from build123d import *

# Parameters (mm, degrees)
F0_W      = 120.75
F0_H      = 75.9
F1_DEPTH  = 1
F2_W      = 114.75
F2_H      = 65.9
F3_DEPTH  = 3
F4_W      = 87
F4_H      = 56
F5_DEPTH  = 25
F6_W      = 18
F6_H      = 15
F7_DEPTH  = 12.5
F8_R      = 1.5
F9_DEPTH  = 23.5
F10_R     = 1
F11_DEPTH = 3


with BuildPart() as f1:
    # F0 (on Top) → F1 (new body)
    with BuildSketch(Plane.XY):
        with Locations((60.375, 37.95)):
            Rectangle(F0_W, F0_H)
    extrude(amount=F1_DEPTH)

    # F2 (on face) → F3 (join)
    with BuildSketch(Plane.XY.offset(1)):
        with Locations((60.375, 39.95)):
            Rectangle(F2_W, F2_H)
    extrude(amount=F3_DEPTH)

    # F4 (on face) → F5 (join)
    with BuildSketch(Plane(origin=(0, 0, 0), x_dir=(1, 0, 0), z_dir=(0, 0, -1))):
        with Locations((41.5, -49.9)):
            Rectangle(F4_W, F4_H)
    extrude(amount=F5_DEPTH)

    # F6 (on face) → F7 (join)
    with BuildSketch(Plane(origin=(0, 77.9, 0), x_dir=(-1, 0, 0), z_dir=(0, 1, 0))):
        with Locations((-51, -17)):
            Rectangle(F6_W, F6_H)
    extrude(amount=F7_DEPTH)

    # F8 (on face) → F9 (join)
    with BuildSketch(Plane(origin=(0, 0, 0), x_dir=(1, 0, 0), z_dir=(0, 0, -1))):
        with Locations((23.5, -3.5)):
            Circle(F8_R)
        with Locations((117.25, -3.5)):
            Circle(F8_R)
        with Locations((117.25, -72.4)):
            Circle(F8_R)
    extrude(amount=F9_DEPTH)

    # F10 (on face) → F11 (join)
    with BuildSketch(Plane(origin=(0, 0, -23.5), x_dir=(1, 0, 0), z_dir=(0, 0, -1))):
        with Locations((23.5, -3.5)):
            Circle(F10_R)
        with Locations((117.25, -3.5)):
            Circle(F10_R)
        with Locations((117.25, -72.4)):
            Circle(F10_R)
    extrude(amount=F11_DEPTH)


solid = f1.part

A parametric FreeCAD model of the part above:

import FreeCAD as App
import Part
import Sketcher
from FreeCAD import Vector


def add_polygon(sketch, points):
    """Adds a closed chain of lines whose ends are joined by coincident constraints."""
    first, n = sketch.GeometryCount, len(points)
    for a, b in zip(points, points[1:] + points[:1]):
        sketch.addGeometry(Part.LineSegment(App.Vector(*a, 0), App.Vector(*b, 0)), False)
    for i in range(n):
        sketch.addConstraint(Sketcher.Constraint("Coincident", first + i, 2, first + (i + 1) % n, 1))

doc = App.newDocument("Part")
body = doc.addObject("PartDesign::Body", "Body")

# Sketch on XY plane
sketch1 = body.newObject("Sketcher::SketchObject", "Sketch")
sketch1.AttachmentSupport = (doc.getObject("XY_Plane"), [""])
sketch1.MapMode = "FlatFace"
add_polygon(sketch1, [(0, 76), (0, 0), (121, 0), (121, 76)])  # lines 0-3
sketch1.addConstraint(Sketcher.Constraint("Vertical", 0))
sketch1.addConstraint(Sketcher.Constraint("Horizontal", 1))
sketch1.addConstraint(Sketcher.Constraint("Vertical", 2))
sketch1.addConstraint(Sketcher.Constraint("Horizontal", 3))
sketch1.addConstraint(Sketcher.Constraint("Coincident", 0, 2, -1, 1))
sketch1.addConstraint(Sketcher.Constraint("DistanceY", 0, 2, 0, 1, 75.9))
sketch1.addConstraint(Sketcher.Constraint("DistanceX", 1, 1, 1, 2, 120.75))
pad1 = body.newObject("PartDesign::Pad", "Pad")
pad1.Profile = sketch1
pad1.Length = 1

# Sketch on XY plane
sketch2 = body.newObject("Sketcher::SketchObject", "Sketch001")
sketch2.AttachmentSupport = (doc.getObject("XY_Plane"), [""])
sketch2.MapMode = "FlatFace"
sketch2.AttachmentOffset = App.Placement(Vector(0, 0, 1), App.Rotation())
add_polygon(sketch2, [(3, 73), (3, 7), (118, 7), (118, 73)])  # lines 0-3
sketch2.addConstraint(Sketcher.Constraint("Vertical", 0))
sketch2.addConstraint(Sketcher.Constraint("Horizontal", 1))
sketch2.addConstraint(Sketcher.Constraint("Vertical", 2))
sketch2.addConstraint(Sketcher.Constraint("Horizontal", 3))
sketch2.addConstraint(Sketcher.Constraint("DistanceY", 0, 2, 0, 1, 65.9))
sketch2.addConstraint(Sketcher.Constraint("DistanceX", -1, 1, 0, 2, 3.0))
sketch2.addConstraint(Sketcher.Constraint("DistanceY", -1, 1, 0, 2, 7.0))
sketch2.addConstraint(Sketcher.Constraint("DistanceX", 1, 1, 1, 2, 114.75))
pad2 = body.newObject("PartDesign::Pad", "Pad001")
pad2.Profile = sketch2
pad2.Length = 3

# Sketch on XY plane
sketch3 = body.newObject("Sketcher::SketchObject", "Sketch002")
sketch3.AttachmentSupport = (doc.getObject("XY_Plane"), [""])
sketch3.MapMode = "FlatFace"
add_polygon(sketch3, [(-2, 22), (-2, 78), (85, 78), (85, 22)])  # lines 0-3
sketch3.addConstraint(Sketcher.Constraint("Vertical", 0))
sketch3.addConstraint(Sketcher.Constraint("Horizontal", 1))
sketch3.addConstraint(Sketcher.Constraint("Vertical", 2))
sketch3.addConstraint(Sketcher.Constraint("Horizontal", 3))
sketch3.addConstraint(Sketcher.Constraint("DistanceX", 1, 1, 1, 2, 87.0))
sketch3.addConstraint(Sketcher.Constraint("DistanceY", 0, 1, 0, 2, 56.0))
sketch3.addConstraint(Sketcher.Constraint("DistanceX", 0, 2, -1, 1, 2.0))
sketch3.addConstraint(Sketcher.Constraint("DistanceY", -1, 1, 0, 2, 77.9))
pad3 = body.newObject("PartDesign::Pad", "Pad002")
pad3.Profile = sketch3
pad3.Length = 25
pad3.Reversed = True

# Sketch on XZ plane
sketch4 = body.newObject("Sketcher::SketchObject", "Sketch003")
sketch4.AttachmentSupport = (doc.getObject("XZ_Plane"), [""])
sketch4.MapMode = "FlatFace"
sketch4.AttachmentOffset = App.Placement(Vector(0, 0, -77.9), App.Rotation())
add_polygon(sketch4, [(60, -10), (60, -24), (42, -24), (42, -10)])  # lines 0-3
sketch4.addConstraint(Sketcher.Constraint("Vertical", 0))
sketch4.addConstraint(Sketcher.Constraint("Horizontal", 1))
sketch4.addConstraint(Sketcher.Constraint("Vertical", 2))
sketch4.addConstraint(Sketcher.Constraint("Horizontal", 3))
sketch4.addConstraint(Sketcher.Constraint("DistanceX", 1, 2, 1, 1, 18.0))
sketch4.addConstraint(Sketcher.Constraint("DistanceY", 0, 2, 0, 1, 15.0))
sketch4.addConstraint(Sketcher.Constraint("DistanceX", -1, 1, 0, 2, 60.0))
sketch4.addConstraint(Sketcher.Constraint("DistanceY", 0, 2, -1, 1, 24.5))
pad4 = body.newObject("PartDesign::Pad", "Pad003")
pad4.Profile = sketch4
pad4.Length = 12.5
pad4.Reversed = True

# Sketch on XY plane
sketch5 = body.newObject("Sketcher::SketchObject", "Sketch004")
sketch5.AttachmentSupport = (doc.getObject("XY_Plane"), [""])
sketch5.MapMode = "FlatFace"
sketch5.addGeometry(Part.Circle(Vector(23.5, 3.5, 0), Vector(0, 0, 1), 1.5), False)
sketch5.addGeometry(Part.Circle(Vector(117.2, 3.5, 0), Vector(0, 0, 1), 1.5), False)
sketch5.addGeometry(Part.Circle(Vector(117.2, 72.4, 0), Vector(0, 0, 1), 1.5), False)
sketch5.addConstraint(Sketcher.Constraint("Equal", 0, 1))
sketch5.addConstraint(Sketcher.Constraint("Equal", 1, 2))
sketch5.addConstraint(Sketcher.Constraint("Horizontal", 0, 3, 1, 3))
sketch5.addConstraint(Sketcher.Constraint("Vertical", 1, 3, 2, 3))
sketch5.addConstraint(Sketcher.Constraint("Diameter", 0, 3.0))
sketch5.addConstraint(Sketcher.Constraint("DistanceX", -1, 1, 0, 3, 23.5))
sketch5.addConstraint(Sketcher.Constraint("DistanceY", -1, 1, 0, 3, 3.5))
sketch5.addConstraint(Sketcher.Constraint("DistanceY", -1, 1, 2, 3, 72.4))
sketch5.addConstraint(Sketcher.Constraint("DistanceX", -1, 1, 1, 3, 117.25))
pad5 = body.newObject("PartDesign::Pad", "Pad004")
pad5.Profile = sketch5
pad5.Length = 23.5
pad5.Reversed = True

# Sketch on XY plane
sketch6 = body.newObject("Sketcher::SketchObject", "Sketch005")
sketch6.AttachmentSupport = (doc.getObject("XY_Plane"), [""])
sketch6.MapMode = "FlatFace"
sketch6.AttachmentOffset = App.Placement(Vector(0, 0, -23.5), App.Rotation())
sketch6.addGeometry(Part.Circle(Vector(23.5, 3.5, 0), Vector(0, 0, 1), 1), False)
sketch6.addGeometry(Part.Circle(Vector(117.2, 3.5, 0), Vector(0, 0, 1), 1), False)
sketch6.addGeometry(Part.Circle(Vector(117.2, 72.4, 0), Vector(0, 0, 1), 1), False)
sketch6.addConstraint(Sketcher.Constraint("Equal", 0, 1))
sketch6.addConstraint(Sketcher.Constraint("Equal", 1, 2))
sketch6.addConstraint(Sketcher.Constraint("Horizontal", 0, 3, 1, 3))
sketch6.addConstraint(Sketcher.Constraint("Vertical", 1, 3, 2, 3))
sketch6.addConstraint(Sketcher.Constraint("Diameter", 0, 2.0))
sketch6.addConstraint(Sketcher.Constraint("DistanceX", -1, 1, 0, 3, 23.5))
sketch6.addConstraint(Sketcher.Constraint("DistanceY", -1, 1, 0, 3, 3.5))
sketch6.addConstraint(Sketcher.Constraint("DistanceY", -1, 1, 2, 3, 72.4))
sketch6.addConstraint(Sketcher.Constraint("DistanceX", -1, 1, 1, 3, 117.25))
pad6 = body.newObject("PartDesign::Pad", "Pad005")
pad6.Profile = sketch6
pad6.Length = 3
pad6.Reversed = True

doc.recompute()
